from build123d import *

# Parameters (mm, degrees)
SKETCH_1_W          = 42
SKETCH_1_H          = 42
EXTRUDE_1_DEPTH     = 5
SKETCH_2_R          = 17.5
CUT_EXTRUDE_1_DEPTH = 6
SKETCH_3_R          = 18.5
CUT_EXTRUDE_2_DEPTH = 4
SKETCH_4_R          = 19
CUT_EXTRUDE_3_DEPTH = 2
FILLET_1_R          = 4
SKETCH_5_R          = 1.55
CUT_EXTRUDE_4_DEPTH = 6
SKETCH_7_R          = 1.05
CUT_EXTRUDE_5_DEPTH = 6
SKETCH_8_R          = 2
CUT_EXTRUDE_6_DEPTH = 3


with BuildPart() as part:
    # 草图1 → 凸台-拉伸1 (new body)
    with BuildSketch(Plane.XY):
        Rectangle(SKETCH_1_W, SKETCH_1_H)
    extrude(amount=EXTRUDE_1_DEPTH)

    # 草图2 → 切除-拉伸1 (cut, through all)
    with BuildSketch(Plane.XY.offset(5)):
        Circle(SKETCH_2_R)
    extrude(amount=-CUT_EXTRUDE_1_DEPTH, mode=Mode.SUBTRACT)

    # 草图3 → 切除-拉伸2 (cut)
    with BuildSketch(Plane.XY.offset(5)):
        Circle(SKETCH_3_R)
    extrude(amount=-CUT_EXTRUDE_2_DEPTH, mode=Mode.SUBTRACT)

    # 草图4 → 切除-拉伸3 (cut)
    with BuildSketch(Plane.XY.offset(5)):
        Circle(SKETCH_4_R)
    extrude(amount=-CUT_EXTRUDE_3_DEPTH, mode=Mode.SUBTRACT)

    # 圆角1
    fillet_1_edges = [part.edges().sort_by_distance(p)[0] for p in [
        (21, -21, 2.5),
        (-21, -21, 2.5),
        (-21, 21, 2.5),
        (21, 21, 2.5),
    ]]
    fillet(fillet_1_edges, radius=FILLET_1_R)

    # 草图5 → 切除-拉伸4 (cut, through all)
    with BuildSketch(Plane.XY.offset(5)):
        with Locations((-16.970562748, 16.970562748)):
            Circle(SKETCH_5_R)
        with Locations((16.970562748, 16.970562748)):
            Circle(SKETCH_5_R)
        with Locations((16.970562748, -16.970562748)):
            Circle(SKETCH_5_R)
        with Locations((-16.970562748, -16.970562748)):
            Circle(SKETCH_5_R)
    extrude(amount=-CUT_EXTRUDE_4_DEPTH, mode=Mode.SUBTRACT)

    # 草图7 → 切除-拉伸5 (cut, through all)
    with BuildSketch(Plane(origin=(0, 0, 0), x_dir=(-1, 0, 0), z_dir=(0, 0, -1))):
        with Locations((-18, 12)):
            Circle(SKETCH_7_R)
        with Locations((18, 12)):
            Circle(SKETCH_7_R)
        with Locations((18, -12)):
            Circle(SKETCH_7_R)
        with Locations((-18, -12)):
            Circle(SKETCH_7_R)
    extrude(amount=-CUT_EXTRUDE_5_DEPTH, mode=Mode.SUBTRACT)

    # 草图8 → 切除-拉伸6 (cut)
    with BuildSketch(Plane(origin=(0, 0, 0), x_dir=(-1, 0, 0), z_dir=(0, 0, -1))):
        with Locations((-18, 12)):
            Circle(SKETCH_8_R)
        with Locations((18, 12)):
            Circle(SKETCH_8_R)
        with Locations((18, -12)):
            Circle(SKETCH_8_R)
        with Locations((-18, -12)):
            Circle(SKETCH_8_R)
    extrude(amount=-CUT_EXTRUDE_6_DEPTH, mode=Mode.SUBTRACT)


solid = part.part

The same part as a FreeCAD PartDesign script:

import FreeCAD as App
import Part
import Sketcher


def edges_at(feature, points):
    """Names of the edges that pass closest to the given points."""
    edges = feature.Shape.Edges
    near = lambda p: min(range(len(edges)), key=lambda i: edges[i].distToShape(Part.Vertex(*p))[0])
    return sorted({f"Edge{near(p) + 1}" for p in points})


def add_polygon(sketch, points):
    """Adds a closed chain of lines whose ends are joined by coincident constraints."""
    first, n = sketch.GeometryCount, len(points)
    for a, b in zip(points, points[1:] + points[:1]):
        sketch.addGeometry(Part.LineSegment(App.Vector(*a, 0), App.Vector(*b, 0)), False)
    for i in range(n):
        sketch.addConstraint(Sketcher.Constraint("Coincident", first + i, 2, first + (i + 1) % n, 1))

doc = App.newDocument("Part")
body = doc.addObject("PartDesign::Body", "Body")

sketch1 = body.newObject("Sketcher::SketchObject", "Sketch")
sketch1.AttachmentSupport = (doc.getObject("XY_Plane"), [""])
sketch1.MapMode = "FlatFace"
add_polygon(sketch1, [(-21, 21), (-21, -21), (21, -21), (21, 21)])
sketch1.addConstraint(Sketcher.Constraint("Vertical", 0))
sketch1.addConstraint(Sketcher.Constraint("Horizontal", 1))
sketch1.addConstraint(Sketcher.Constraint("Vertical", 2))
sketch1.addConstraint(Sketcher.Constraint("Horizontal", 3))
sketch1.addConstraint(Sketcher.Constraint("Symmetric", 0, 2, 2, 2, -1, 1))
sketch1.addConstraint(Sketcher.Constraint("Equal", 3, 0))
sketch1.addConstraint(Sketcher.Constraint("DistanceX", 1, 1, 1, 2, 42.0))
pad1 = body.newObject("PartDesign::Pad", "Pad")
pad1.Profile = sketch1
pad1.Length = 5

sketch2 = body.newObject("Sketcher::SketchObject", "Sketch001")
sketch2.AttachmentSupport = (doc.getObject("XY_Plane"), [""])
sketch2.MapMode = "FlatFace"
sketch2.AttachmentOffset = App.Placement(App.Vector(0, 0, 5), App.Rotation())
sketch2.addGeometry(Part.Circle(App.Vector(0, 0, 0), App.Vector(0, 0, 1), 18), False)
sketch2.addConstraint(Sketcher.Constraint("Coincident", 0, 3, -1, 1))
sketch2.addConstraint(Sketcher.Constraint("Diameter", 0, 35.0))
pocket1 = body.newObject("PartDesign::Pocket", "Pocket")
pocket1.Profile = sketch2
pocket1.Type = "ThroughAll"

sketch3 = body.newObject("Sketcher::SketchObject", "Sketch002")
sketch3.AttachmentSupport = (doc.getObject("XY_Plane"), [""])
sketch3.MapMode = "FlatFace"
sketch3.AttachmentOffset = App.Placement(App.Vector(0, 0, 5), App.Rotation())
sketch3.addGeometry(Part.Circle(App.Vector(0, 0, 0), App.Vector(0, 0, 1), 18), False)
sketch3.addConstraint(Sketcher.Constraint("Coincident", 0, 3, -1, 1))
sketch3.addConstraint(Sketcher.Constraint("Diameter", 0, 37.0))
pocket2 = body.newObject("PartDesign::Pocket", "Pocket001")
pocket2.Profile = sketch3
pocket2.Length = 4

sketch4 = body.newObject("Sketcher::SketchObject", "Sketch003")
sketch4.AttachmentSupport = (doc.getObject("XY_Plane"), [""])
sketch4.MapMode = "FlatFace"
sketch4.AttachmentOffset = App.Placement(App.Vector(0, 0, 5), App.Rotation())
sketch4.addGeometry(Part.Circle(App.Vector(0, 0, 0), App.Vector(0, 0, 1), 19), False)
sketch4.addConstraint(Sketcher.Constraint("Coincident", 0, 3, -1, 1))
sketch4.addConstraint(Sketcher.Constraint("Diameter", 0, 38.0))
pocket3 = body.newObject("PartDesign::Pocket", "Pocket002")
pocket3.Profile = sketch4
pocket3.Length = 2
doc.recompute()

fillet = body.newObject("PartDesign::Fillet", "Fillet")
fillet.Base = (pocket3, edges_at(pocket3, [
    (21, -21, 2.5),
    (-21, -21, 2.5),
    (-21, 21, 2.5),
    (21, 21, 2.5),
]))
fillet.Radius = 4

sketch5 = body.newObject("Sketcher::SketchObject", "Sketch004")
sketch5.AttachmentSupport = (doc.getObject("XY_Plane"), [""])
sketch5.MapMode = "FlatFace"
sketch5.AttachmentOffset = App.Placement(App.Vector(0, 0, 5), App.Rotation())
sketch5.addGeometry(Part.Circle(App.Vector(-17, 17, 0), App.Vector(0, 0, 1), 1.6), False)
sketch5.addGeometry(Part.Circle(App.Vector(17, 17, 0), App.Vector(0, 0, 1), 1.6), False)
sketch5.addGeometry(Part.Circle(App.Vector(17, -17, 0), App.Vector(0, 0, 1), 1.6), False)
sketch5.addGeometry(Part.Circle(App.Vector(-17, -17, 0), App.Vector(0, 0, 1), 1.6), False)
sketch5.addConstraint(Sketcher.Constraint("Equal", 0, 1))
sketch5.addConstraint(Sketcher.Constraint("Equal", 1, 2))
sketch5.addConstraint(Sketcher.Constraint("Equal", 2, 3))
sketch5.addConstraint(Sketcher.Constraint("Symmetric", 0, 3, 2, 3, -1, 1))
sketch5.addConstraint(Sketcher.Constraint("Symmetric", 1, 3, 3, 3, -1, 1))
sketch5.addConstraint(Sketcher.Constraint("Symmetric", 0, 3, 1, 3, -2))
sketch5.addConstraint(Sketcher.Constraint("Diameter", 0, 3.1))
sketch5.addConstraint(Sketcher.Constraint("DistanceX", 0, 3, -1, 1, 16.970563))
sketch5.addConstraint(Sketcher.Constraint("DistanceY", -1, 1, 0, 3, 16.970563))
pocket4 = body.newObject("PartDesign::Pocket", "Pocket003")
pocket4.Profile = sketch5
pocket4.Type = "ThroughAll"

sketch6 = body.newObject("Sketcher::SketchObject", "Sketch005")
sketch6.AttachmentSupport = (doc.getObject("XY_Plane"), [""])
sketch6.MapMode = "FlatFace"
sketch6.addGeometry(Part.Circle(App.Vector(18, 12, 0), App.Vector(0, 0, 1), 1.1), False)
sketch6.addGeometry(Part.Circle(App.Vector(-18, 12, 0), App.Vector(0, 0, 1), 1.1), False)
sketch6.addGeometry(Part.Circle(App.Vector(-18, -12, 0), App.Vector(0, 0, 1), 1.1), False)
sketch6.addGeometry(Part.Circle(App.Vector(18, -12, 0), App.Vector(0, 0, 1), 1.1), False)
sketch6.addConstraint(Sketcher.Constraint("Equal", 0, 1))
sketch6.addConstraint(Sketcher.Constraint("Equal", 1, 2))
sketch6.addConstraint(Sketcher.Constraint("Equal", 2, 3))
sketch6.addConstraint(Sketcher.Constraint("Symmetric", 0, 3, 2, 3, -1, 1))
sketch6.addConstraint(Sketcher.Constraint("Symmetric", 1, 3, 3, 3, -1, 1))
sketch6.addConstraint(Sketcher.Constraint("Symmetric", 0, 3, 1, 3, -2))
sketch6.addConstraint(Sketcher.Constraint("Diameter", 0, 2.1))
sketch6.addConstraint(Sketcher.Constraint("DistanceX", -1, 1, 0, 3, 18.0))
sketch6.addConstraint(Sketcher.Constraint("DistanceY", -1, 1, 0, 3, 12.0))
pocket5 = body.newObject("PartDesign::Pocket", "Pocket004")
pocket5.Profile = sketch6
pocket5.Type = "ThroughAll"
pocket5.Reversed = True

sketch7 = body.newObject("Sketcher::SketchObject", "Sketch006")
sketch7.AttachmentSupport = (doc.getObject("XY_Plane"), [""])
sketch7.MapMode = "FlatFace"
sketch7.addGeometry(Part.Circle(App.Vector(18, 12, 0), App.Vector(0, 0, 1), 2), False)
sketch7.addGeometry(Part.Circle(App.Vector(-18, 12, 0), App.Vector(0, 0, 1), 2), False)
sketch7.addGeometry(Part.Circle(App.Vector(-18, -12, 0), App.Vector(0, 0, 1), 2), False)
sketch7.addGeometry(Part.Circle(App.Vector(18, -12, 0), App.Vector(0, 0, 1), 2), False)
sketch7.addConstraint(Sketcher.Constraint("Equal", 0, 1))
sketch7.addConstraint(Sketcher.Constraint("Equal", 1, 2))
sketch7.addConstraint(Sketcher.Constraint("Equal", 2, 3))
sketch7.addConstraint(Sketcher.Constraint("Symmetric", 0, 3, 2, 3, -1, 1))
sketch7.addConstraint(Sketcher.Constraint("Symmetric", 1, 3, 3, 3, -1, 1))
sketch7.addConstraint(Sketcher.Constraint("Symmetric", 0, 3, 1, 3, -2))
sketch7.addConstraint(Sketcher.Constraint("Diameter", 0, 4.0))
sketch7.addConstraint(Sketcher.Constraint("DistanceX", -1, 1, 0, 3, 18.0))
sketch7.addConstraint(Sketcher.Constraint("DistanceY", -1, 1, 0, 3, 12.0))
pocket6 = body.newObject("PartDesign::Pocket", "Pocket005")
pocket6.Profile = sketch7
pocket6.Length = 3
pocket6.Reversed = True

doc.recompute()
